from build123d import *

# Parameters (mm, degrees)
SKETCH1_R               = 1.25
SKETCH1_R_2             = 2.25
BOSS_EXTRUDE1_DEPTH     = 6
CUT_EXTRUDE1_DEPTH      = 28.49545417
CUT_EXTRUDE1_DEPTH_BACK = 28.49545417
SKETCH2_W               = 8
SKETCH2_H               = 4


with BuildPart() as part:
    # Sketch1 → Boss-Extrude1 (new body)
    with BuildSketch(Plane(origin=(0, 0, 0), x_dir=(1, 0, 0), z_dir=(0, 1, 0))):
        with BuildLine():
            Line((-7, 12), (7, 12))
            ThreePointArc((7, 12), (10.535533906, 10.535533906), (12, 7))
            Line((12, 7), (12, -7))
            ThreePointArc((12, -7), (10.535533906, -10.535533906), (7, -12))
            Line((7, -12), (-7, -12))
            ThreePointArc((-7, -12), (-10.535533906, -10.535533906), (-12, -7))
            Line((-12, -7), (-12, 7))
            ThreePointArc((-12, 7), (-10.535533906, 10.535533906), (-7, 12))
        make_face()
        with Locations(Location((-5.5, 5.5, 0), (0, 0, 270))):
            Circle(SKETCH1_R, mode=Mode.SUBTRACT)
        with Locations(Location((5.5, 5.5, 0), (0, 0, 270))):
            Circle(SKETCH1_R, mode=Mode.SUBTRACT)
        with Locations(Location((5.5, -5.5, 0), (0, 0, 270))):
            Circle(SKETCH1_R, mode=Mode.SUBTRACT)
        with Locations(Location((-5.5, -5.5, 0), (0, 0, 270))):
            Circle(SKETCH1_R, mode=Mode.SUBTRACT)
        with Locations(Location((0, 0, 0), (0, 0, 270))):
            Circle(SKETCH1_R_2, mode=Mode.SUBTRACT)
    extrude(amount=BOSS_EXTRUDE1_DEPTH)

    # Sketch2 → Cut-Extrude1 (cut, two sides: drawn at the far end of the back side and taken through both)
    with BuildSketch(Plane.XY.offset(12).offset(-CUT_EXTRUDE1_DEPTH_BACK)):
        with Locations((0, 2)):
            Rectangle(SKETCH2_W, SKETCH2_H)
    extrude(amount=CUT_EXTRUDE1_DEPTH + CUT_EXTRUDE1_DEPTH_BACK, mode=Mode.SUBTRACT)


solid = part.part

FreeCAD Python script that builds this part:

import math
import FreeCAD as App
import Part
import Sketcher

V = App.Vector
Q = App.Units.Quantity


def add_polygon(sketch, points):
    """Adds a closed chain of lines whose ends are joined by coincident constraints."""
    first, n = sketch.GeometryCount, len(points)
    for a, b in zip(points, points[1:] + points[:1]):
        sketch.addGeometry(Part.LineSegment(App.Vector(*a, 0), App.Vector(*b, 0)), False)
    for i in range(n):
        sketch.addConstraint(Sketcher.Constraint("Coincident", first + i, 2, first + (i + 1) % n, 1))

doc = App.newDocument("Part")
body = doc.addObject("PartDesign::Body", "Body")

# Sketch on XZ plane
sketch1 = body.newObject("Sketcher::SketchObject", "Sketch")
sketch1.AttachmentSupport = (doc.getObject("XZ_Plane"), [""])
sketch1.MapMode = "FlatFace"
sketch1.addGeometry([
    Part.LineSegment(V(7, -12, 0), V(-7, -12, 0)),  # 0
    Part.ArcOfCircle(Part.Circle(V(-7, -7, 0), V(0, 0, 1), 5), math.radians(180), math.radians(270)),  # 1
    Part.LineSegment(V(-12, -7, 0), V(-12, 7, 0)),  # 2
    Part.ArcOfCircle(Part.Circle(V(-7, 7, 0), V(0, 0, 1), 5), math.radians(90), math.radians(180)),  # 3
    Part.LineSegment(V(-7, 12, 0), V(7, 12, 0)),  # 4
    Part.ArcOfCircle(Part.Circle(V(7, 7, 0), V(0, 0, 1), 5), math.radians(0), math.radians(90)),  # 5
    Part.LineSegment(V(12, 7, 0), V(12, -7, 0)),  # 6
    Part.ArcOfCircle(Part.Circle(V(7, -7, 0), V(0, 0, 1), 5), math.radians(-90), math.radians(0)),  # 7
    Part.Circle(V(5.5, 5.5, 0), V(0, 0, 1), 1.2),  # 8
    Part.Circle(V(-5.5, 5.5, 0), V(0, 0, 1), 1.2),  # 9
    Part.Circle(V(5.5, -5.5, 0), V(0, 0, 1), 1.2),  # 10
    Part.Circle(V(0, 0, 0), V(0, 0, 1), 2.2),  # 11
    Part.Circle(V(-5.5, -5.5, 0), V(0, 0, 1), 1.2),  # 12
], False)
sketch1.addConstraint([
    Sketcher.Constraint("Tangent", 0, 2, 1, 2),
    Sketcher.Constraint("Tangent", 1, 1, 2, 1),
    Sketcher.Constraint("Tangent", 2, 2, 3, 2),
    Sketcher.Constraint("Tangent", 3, 1, 4, 1),
    Sketcher.Constraint("Tangent", 4, 2, 5, 2),
    Sketcher.Constraint("Tangent", 5, 1, 6, 1),
    Sketcher.Constraint("Tangent", 6, 2, 7, 2),
    Sketcher.Constraint("Tangent", 7, 1, 0, 1),
    Sketcher.Constraint("Horizontal", 0),
    Sketcher.Constraint("Vertical", 2),
    Sketcher.Constraint("Horizontal", 4),
    Sketcher.Constraint("Vertical", 6),
    Sketcher.Constraint("Coincident", 11, 3, -1, 1),
    Sketcher.Constraint("Equal", 1, 3),
    Sketcher.Constraint("Equal", 3, 5),
    Sketcher.Constraint("Equal", 5, 7),
    Sketcher.Constraint("Equal", 8, 9),
    Sketcher.Constraint("Equal", 9, 10),
    Sketcher.Constraint("Equal", 10, 12),
    Sketcher.Constraint("Symmetric", 1, 3, 5, 3, -1, 1),
    Sketcher.Constraint("Symmetric", 9, 3, 10, 3, -1, 1),
    Sketcher.Constraint("Symmetric", 8, 3, 12, 3, -1, 1),
    Sketcher.Constraint("Symmetric", 8, 3, 9, 3, -2),
    Sketcher.Constraint("Equal", 4, 2),
    Sketcher.Constraint("Radius", 1, Q("5 mm")),
    Sketcher.Constraint("Diameter", 8, Q("2.5 mm")),
    Sketcher.Constraint("Diameter", 11, Q("4.5 mm")),
    Sketcher.Constraint("DistanceX", 0, 2, 0, 1, Q("14 mm")),
    Sketcher.Constraint("DistanceX", 9, 3, 8, 3, Q("11 mm")),
    Sketcher.Constraint("DistanceY", 10, 3, 8, 3, Q("11 mm")),
])
pad1 = body.newObject("PartDesign::Pad", "Pad")
pad1.Profile = sketch1
pad1.Length = 6
pad1.Reversed = True

# Sketch on XY plane
sketch2 = body.newObject("Sketcher::SketchObject", "Sketch001")
sketch2.AttachmentSupport = (doc.getObject("XY_Plane"), [""])
sketch2.MapMode = "FlatFace"
sketch2.AttachmentOffset = App.Placement(V(0, 0, 12), App.Rotation())
add_polygon(sketch2, [(-4, 4), (-4, 0), (4, 0), (4, 4)])  # lines 0-3
sketch2.addConstraint([
    Sketcher.Constraint("Vertical", 0),
    Sketcher.Constraint("Horizontal", 1),
    Sketcher.Constraint("Vertical", 2),
    Sketcher.Constraint("Horizontal", 3),
    Sketcher.Constraint("Symmetric", 0, 2, 1, 2, -1, 1),
    Sketcher.Constraint("DistanceX", 1, 1, 1, 2, Q("8 mm")),
    Sketcher.Constraint("DistanceY", 0, 2, 0, 1, Q("4 mm")),
])
pocket1 = body.newObject("PartDesign::Pocket", "Pocket")
pocket1.Profile = sketch2
pocket1.Type = "ThroughAll"
pocket1.Midplane = True

doc.recompute()
